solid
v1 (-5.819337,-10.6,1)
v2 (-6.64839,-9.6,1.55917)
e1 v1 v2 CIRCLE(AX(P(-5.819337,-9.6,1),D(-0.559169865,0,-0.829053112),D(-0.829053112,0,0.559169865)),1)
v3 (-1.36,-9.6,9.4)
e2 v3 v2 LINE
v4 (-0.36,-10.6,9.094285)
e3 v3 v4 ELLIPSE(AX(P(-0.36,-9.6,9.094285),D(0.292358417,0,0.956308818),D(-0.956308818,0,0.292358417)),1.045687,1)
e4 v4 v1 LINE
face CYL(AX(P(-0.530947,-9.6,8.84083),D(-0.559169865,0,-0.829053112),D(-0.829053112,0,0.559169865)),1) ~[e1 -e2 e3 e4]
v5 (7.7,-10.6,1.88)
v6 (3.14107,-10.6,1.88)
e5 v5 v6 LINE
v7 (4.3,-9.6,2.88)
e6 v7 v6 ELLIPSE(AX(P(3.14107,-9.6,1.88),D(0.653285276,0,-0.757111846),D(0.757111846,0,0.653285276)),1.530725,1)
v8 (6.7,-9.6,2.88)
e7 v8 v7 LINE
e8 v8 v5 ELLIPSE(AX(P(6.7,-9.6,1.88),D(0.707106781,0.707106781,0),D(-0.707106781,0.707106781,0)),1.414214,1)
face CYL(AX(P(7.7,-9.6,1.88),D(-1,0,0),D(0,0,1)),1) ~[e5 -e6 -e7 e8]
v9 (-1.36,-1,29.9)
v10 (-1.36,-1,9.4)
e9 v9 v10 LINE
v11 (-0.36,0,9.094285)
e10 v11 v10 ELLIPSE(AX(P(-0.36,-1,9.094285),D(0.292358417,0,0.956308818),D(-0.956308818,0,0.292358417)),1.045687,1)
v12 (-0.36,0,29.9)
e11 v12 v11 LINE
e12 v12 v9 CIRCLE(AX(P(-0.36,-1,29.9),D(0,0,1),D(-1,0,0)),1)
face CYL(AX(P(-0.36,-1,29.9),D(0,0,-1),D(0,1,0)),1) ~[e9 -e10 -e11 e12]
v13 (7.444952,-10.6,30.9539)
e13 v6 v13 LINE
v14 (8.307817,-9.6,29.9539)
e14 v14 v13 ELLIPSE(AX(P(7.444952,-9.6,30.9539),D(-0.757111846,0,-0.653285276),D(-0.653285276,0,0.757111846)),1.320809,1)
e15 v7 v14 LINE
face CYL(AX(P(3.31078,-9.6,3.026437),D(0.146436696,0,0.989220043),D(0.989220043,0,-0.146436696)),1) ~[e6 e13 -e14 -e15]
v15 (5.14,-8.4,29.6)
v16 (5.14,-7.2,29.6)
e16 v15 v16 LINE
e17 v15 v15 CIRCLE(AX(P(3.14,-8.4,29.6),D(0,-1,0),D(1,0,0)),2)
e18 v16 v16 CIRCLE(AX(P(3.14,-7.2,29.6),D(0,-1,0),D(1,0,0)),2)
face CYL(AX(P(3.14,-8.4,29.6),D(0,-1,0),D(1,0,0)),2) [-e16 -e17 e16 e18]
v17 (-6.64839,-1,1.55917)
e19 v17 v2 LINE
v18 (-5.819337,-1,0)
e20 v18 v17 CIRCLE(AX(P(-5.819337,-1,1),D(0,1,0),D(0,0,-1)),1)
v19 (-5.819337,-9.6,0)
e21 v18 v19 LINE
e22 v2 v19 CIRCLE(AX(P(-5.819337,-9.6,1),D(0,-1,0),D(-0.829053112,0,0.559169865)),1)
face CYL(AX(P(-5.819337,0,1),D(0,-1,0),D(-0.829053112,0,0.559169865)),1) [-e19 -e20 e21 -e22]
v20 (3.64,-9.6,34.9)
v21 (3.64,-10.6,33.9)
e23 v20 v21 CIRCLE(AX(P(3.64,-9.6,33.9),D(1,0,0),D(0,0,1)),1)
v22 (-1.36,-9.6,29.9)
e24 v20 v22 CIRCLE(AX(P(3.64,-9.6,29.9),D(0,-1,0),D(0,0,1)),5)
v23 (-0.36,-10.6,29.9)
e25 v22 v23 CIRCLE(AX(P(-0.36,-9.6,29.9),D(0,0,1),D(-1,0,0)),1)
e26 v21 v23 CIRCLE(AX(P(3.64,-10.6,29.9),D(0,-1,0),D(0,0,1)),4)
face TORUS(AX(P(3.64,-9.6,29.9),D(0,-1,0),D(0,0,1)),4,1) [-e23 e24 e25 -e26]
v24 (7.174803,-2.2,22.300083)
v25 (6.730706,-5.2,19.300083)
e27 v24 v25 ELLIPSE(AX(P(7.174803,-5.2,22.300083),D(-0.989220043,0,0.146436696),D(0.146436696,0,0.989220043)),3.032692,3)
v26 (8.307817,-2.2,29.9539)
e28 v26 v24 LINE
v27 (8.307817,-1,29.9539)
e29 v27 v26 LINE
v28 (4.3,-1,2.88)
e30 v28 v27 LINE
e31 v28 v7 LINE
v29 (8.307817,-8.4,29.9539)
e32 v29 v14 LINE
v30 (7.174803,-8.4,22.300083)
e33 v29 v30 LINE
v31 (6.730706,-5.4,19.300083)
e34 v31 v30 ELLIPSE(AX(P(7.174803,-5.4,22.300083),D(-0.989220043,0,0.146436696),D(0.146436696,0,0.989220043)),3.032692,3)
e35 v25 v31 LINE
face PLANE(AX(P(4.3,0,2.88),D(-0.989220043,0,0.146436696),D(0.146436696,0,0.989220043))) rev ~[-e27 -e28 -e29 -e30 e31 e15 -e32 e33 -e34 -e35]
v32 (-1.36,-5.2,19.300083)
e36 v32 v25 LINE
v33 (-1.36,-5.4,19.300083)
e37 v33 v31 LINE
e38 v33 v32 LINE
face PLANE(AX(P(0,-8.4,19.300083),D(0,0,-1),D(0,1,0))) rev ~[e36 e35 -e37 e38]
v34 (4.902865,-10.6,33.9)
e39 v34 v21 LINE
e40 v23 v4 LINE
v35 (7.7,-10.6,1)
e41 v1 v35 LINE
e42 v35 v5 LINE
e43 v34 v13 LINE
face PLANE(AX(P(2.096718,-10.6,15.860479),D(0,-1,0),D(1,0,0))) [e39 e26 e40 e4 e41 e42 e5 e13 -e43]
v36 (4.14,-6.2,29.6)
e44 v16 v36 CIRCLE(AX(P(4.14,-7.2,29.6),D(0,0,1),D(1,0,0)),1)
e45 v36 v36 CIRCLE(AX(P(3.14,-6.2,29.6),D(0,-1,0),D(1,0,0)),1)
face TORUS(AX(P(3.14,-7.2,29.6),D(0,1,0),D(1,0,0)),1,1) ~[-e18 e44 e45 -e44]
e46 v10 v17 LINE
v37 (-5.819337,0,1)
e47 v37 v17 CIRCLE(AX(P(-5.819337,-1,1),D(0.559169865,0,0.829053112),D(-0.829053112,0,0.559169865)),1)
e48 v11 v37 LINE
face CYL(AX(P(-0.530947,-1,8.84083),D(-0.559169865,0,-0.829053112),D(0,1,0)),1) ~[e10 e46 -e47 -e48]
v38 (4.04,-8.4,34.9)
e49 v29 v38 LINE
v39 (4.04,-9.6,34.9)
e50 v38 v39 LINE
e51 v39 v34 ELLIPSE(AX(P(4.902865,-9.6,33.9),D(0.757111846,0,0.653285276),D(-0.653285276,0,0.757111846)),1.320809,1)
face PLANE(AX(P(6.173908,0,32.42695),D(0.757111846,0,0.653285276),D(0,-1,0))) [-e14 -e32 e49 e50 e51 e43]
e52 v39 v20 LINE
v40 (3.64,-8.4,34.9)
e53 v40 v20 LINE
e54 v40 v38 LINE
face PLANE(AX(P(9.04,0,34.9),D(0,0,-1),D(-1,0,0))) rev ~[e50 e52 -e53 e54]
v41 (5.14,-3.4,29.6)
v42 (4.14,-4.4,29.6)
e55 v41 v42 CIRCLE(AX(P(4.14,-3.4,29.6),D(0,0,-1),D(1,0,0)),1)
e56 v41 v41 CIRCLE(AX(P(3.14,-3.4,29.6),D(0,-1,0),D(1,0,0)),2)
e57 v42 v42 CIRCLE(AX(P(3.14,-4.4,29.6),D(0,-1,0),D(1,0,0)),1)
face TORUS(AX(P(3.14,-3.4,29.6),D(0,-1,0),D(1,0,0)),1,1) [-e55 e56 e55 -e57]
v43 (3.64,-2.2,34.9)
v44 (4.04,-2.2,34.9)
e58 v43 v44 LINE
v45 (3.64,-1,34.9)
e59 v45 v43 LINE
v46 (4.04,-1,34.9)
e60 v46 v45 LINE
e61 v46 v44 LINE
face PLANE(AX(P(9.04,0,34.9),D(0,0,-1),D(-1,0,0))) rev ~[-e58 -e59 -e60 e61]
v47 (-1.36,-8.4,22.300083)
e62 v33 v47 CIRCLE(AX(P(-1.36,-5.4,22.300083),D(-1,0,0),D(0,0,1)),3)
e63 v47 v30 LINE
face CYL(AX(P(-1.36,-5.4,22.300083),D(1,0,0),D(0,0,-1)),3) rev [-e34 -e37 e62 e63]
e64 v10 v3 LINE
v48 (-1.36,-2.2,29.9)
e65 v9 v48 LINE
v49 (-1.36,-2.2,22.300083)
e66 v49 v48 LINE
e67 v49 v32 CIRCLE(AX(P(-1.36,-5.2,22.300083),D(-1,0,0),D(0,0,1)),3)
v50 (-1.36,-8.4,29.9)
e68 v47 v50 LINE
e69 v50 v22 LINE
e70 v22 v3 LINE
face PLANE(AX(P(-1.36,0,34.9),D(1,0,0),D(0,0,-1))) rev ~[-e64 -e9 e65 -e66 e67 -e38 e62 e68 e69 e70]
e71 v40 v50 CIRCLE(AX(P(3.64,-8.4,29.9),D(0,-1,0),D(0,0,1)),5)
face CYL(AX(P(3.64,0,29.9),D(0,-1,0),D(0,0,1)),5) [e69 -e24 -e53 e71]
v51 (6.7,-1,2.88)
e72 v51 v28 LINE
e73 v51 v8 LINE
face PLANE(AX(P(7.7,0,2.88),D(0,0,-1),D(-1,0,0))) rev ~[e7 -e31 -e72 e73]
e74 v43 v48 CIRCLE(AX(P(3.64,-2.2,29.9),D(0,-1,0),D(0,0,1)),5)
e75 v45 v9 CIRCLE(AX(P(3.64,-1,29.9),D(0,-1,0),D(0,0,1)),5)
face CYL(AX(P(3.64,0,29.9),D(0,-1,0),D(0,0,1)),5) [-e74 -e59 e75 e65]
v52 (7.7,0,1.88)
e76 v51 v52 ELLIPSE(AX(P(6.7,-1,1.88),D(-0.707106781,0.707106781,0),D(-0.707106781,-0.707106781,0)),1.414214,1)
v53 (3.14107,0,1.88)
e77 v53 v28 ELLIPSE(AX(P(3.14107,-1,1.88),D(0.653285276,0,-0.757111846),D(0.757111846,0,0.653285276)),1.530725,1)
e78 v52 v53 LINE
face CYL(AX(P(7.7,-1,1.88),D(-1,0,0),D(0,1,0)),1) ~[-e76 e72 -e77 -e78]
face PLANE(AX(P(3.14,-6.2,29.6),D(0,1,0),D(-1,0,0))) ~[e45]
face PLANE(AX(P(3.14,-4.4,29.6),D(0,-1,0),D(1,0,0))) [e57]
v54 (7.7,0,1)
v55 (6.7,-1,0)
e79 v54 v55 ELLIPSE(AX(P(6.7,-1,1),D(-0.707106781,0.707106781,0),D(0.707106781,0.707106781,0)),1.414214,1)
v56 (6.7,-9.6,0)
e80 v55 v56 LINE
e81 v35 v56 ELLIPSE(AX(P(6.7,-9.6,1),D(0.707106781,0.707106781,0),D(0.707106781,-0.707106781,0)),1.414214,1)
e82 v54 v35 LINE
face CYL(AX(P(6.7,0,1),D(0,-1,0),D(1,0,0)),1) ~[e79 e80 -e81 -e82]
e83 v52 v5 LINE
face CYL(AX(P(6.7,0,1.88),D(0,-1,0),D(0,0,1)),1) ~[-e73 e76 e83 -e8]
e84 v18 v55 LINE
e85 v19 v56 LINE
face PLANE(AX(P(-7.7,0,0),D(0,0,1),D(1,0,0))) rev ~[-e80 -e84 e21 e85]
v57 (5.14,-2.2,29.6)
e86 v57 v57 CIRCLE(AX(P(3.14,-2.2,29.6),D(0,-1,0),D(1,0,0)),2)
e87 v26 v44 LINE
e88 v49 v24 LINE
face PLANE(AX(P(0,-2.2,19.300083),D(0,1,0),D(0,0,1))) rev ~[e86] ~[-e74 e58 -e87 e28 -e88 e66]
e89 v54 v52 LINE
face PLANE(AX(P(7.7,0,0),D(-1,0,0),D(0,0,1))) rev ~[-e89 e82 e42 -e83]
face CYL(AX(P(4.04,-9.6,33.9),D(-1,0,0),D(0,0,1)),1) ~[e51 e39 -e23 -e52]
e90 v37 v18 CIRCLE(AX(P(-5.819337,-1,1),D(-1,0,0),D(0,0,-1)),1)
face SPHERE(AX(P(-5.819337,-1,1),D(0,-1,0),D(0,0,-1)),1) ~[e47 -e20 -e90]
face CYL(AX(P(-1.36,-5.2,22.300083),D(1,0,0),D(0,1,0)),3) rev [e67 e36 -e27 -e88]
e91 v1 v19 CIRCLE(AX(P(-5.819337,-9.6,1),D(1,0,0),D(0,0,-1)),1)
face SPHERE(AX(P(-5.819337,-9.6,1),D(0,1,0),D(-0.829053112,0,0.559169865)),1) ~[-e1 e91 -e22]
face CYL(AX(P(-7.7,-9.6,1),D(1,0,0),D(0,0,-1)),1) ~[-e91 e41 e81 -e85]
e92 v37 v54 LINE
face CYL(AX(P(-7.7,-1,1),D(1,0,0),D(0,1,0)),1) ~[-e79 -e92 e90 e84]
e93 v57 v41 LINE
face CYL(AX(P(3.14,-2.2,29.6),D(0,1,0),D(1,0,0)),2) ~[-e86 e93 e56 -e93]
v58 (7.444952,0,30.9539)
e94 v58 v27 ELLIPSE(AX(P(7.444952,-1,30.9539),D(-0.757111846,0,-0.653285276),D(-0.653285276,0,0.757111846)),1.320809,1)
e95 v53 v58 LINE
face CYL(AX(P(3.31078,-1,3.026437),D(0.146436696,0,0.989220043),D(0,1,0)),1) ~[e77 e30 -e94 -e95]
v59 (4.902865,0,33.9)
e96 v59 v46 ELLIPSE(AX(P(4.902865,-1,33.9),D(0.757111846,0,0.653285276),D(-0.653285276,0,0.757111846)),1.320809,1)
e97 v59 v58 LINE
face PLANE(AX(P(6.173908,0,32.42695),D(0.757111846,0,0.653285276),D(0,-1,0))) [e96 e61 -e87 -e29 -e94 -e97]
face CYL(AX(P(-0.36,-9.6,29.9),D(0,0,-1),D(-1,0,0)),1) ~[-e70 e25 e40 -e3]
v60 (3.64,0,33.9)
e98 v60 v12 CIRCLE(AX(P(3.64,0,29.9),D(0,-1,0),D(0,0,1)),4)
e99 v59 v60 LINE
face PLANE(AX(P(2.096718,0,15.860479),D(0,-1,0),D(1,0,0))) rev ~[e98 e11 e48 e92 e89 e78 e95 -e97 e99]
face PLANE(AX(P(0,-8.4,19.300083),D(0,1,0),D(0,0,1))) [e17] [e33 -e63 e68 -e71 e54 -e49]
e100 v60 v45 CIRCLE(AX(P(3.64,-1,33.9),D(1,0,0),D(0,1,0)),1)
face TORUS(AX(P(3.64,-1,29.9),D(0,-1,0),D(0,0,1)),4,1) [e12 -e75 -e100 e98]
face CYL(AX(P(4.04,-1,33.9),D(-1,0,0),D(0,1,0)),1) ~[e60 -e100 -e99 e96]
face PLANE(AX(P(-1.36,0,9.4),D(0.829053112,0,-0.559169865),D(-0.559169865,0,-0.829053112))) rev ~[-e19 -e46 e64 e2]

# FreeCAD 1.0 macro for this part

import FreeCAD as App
import Part
import Sketcher

V = App.Vector
Q = App.Units.Quantity


def edges_at(feature, points):
    """Names of the edges that pass closest to the given points."""
    edges = feature.Shape.Edges
    near = lambda p: min(range(len(edges)), key=lambda i: edges[i].distToShape(Part.Vertex(*p))[0])
    return sorted({f"Edge{near(p) + 1}" for p in points})


def add_polygon(sketch, points):
    """Adds a closed chain of lines whose ends are joined by coincident constraints."""
    first, n = sketch.GeometryCount, len(points)
    for a, b in zip(points, points[1:] + points[:1]):
        sketch.addGeometry(Part.LineSegment(App.Vector(*a, 0), App.Vector(*b, 0)), False)
    for i in range(n):
        sketch.addConstraint(Sketcher.Constraint("Coincident", first + i, 2, first + (i + 1) % n, 1))

doc = App.newDocument("Part")
body = doc.addObject("PartDesign::Body", "Body")

# Sketch on XZ plane
sketch1 = doc.addObject("Sketcher::SketchObject", "Sketch")
body.addObject(sketch1)
sketch1.AttachmentSupport = (doc.XZ_Plane, [""])
sketch1.MapMode = "FlatFace"
add_polygon(sketch1, [(-1.4, 9.4), (-7.7, 0), (7.7, 0), (7.7, 2.9), (4.3, 2.9), (9, 34.9), (-1.4, 34.9)])  # lines 0-6
sketch1.addConstraint([
    Sketcher.Constraint("Horizontal", 1),
    Sketcher.Constraint("Vertical", 2),
    Sketcher.Constraint("Horizontal", 3),
    Sketcher.Constraint("Horizontal", 5),
    Sketcher.Constraint("Vertical", 6),
    Sketcher.Constraint("Symmetric", 0, 2, 1, 2, -1, 1),
    Sketcher.Constraint("DistanceX", 1, 1, 1, 2, Q("15.4 mm")),
    Sketcher.Constraint("DistanceX", 3, 2, 3, 1, Q("3.4 mm")),
    Sketcher.Constraint("DistanceX", 5, 2, 5, 1, Q("10.4 mm")),
    Sketcher.Constraint("DistanceY", 6, 2, 6, 1, Q("25.5 mm")),
    Sketcher.Constraint("DistanceY", 2, 1, 2, 2, Q("2.88 mm")),
    Sketcher.Constraint("DistanceY", -1, 1, 4, 2, Q("34.9 mm")),
    Sketcher.Constraint("DistanceX", -1, 1, 4, 2, Q("9.04 mm")),
])
pad1 = doc.addObject("PartDesign::Pad", "Pad")
body.addObject(pad1)
pad1.Profile = sketch1
pad1.Length = 10.6
doc.recompute()

fillet = doc.addObject("PartDesign::Fillet", "Fillet")
body.addObject(fillet)
fillet.Base = (pad1, edges_at(pad1, [(-1.36, -5.3, 34.9)]))
fillet.Radius = 5
doc.recompute()

chamfer = doc.addObject("PartDesign::Chamfer", "Chamfer")
body.addObject(chamfer)
chamfer.Base = (fillet, edges_at(fillet, [(9.04, -5.3, 34.9)]))
chamfer.Size = 5

# Sketch on YZ plane
sketch2 = doc.addObject("Sketcher::SketchObject", "Sketch001")
body.addObject(sketch2)
sketch2.AttachmentSupport = (doc.YZ_Plane, [""])
sketch2.MapMode = "FlatFace"
add_polygon(sketch2, [(-8, 35), (-8, 19), (-2, 19), (-2, 35)])  # lines 0-3
sketch2.addConstraint([
    Sketcher.Constraint("Vertical", 0),
    Sketcher.Constraint("Horizontal", 1),
    Sketcher.Constraint("Vertical", 2),
    Sketcher.Constraint("Horizontal", 3),
    Sketcher.Constraint("DistanceX", 1, 1, 1, 2, Q("6.2 mm")),
    Sketcher.Constraint("DistanceY", 0, 2, 0, 1, Q("15.6 mm")),
    Sketcher.Constraint("DistanceX", 0, 2, -1, 1, Q("8.4 mm")),
    Sketcher.Constraint("DistanceY", -1, 1, 0, 2, Q("19.300083 mm")),
])
pocket1 = doc.addObject("PartDesign::Pocket", "Pocket")
body.addObject(pocket1)
pocket1.Profile = sketch2
pocket1.Length = 25
pocket1.Midplane = True

# Sketch on XZ plane
sketch3 = doc.addObject("Sketcher::SketchObject", "Sketch002")
body.addObject(sketch3)
sketch3.AttachmentSupport = (doc.XZ_Plane, [""])
sketch3.MapMode = "FlatFace"
sketch3.AttachmentOffset = App.Placement(V(0, 0, 2.2), App.Rotation())
sketch3.addGeometry(Part.Circle(V(3.1, 29.6, 0), V(0, 0, 1), 2), False)
sketch3.addConstraint([
    Sketcher.Constraint("Diameter", 0, Q("4 mm")),
    Sketcher.Constraint("DistanceY", -1, 1, 0, 3, Q("29.6 mm")),
    Sketcher.Constraint("DistanceX", -1, 1, 0, 3, Q("3.14 mm")),
])
pad2 = doc.addObject("PartDesign::Pad", "Pad001")
body.addObject(pad2)
pad2.Profile = sketch3
pad2.Length = 2.2
body2 = doc.addObject("PartDesign::Body", "Body001")
doc.recompute()

body2.BaseFeature = body
doc.recompute()

mirroring = doc.addObject("Part::Mirroring", "Mirroring")
mirroring.Source = body
mirroring.Base = V(0, -5.3, 0)
mirroring.Normal = V(0, -1, 0)
body3 = doc.addObject("PartDesign::Body", "Body002")
body3.BaseFeature = mirroring
boolean = doc.addObject("PartDesign::Boolean", "Boolean")
body2.addObject(boolean)
boolean.Type = "Fuse"
boolean.addObjects([body3])
doc.recompute()

fillet2 = doc.addObject("PartDesign::Fillet", "Fillet001")
body2.addObject(fillet2)
fillet2.Base = (boolean, edges_at(boolean, [
    (1.14, -6.2, 29.6),
    (1.14, -4.4, 29.6),
    (-4.53, 0, 4.7),
    (-7.7, -5.3, 0),
    (-4.53, -10.6, 4.7),
    (-1.36, -10.6, 19.65),
    (-1.36, 0, 19.65),
    (6.304, 0, 16.417),
    (6.304, -10.6, 16.417),
    (6, -10.6, 2.88),
    (7.7, -5.3, 2.88),
    (6, 0, 2.88),
    (0, 0, 0),
    (7.7, -5.3, 0),
    (0, -10.6, 0),
]))
fillet2.Radius = 1
doc.recompute()

fillet3 = doc.addObject("PartDesign::Fillet", "Fillet002")
body2.addObject(fillet3)
fillet3.Base = (fillet2, edges_at(fillet2, [(2.685, -2.2, 19.3), (2.685, -8.4, 19.3)]))
fillet3.Radius = 3
mirroring.Visibility = False

doc.recompute()
